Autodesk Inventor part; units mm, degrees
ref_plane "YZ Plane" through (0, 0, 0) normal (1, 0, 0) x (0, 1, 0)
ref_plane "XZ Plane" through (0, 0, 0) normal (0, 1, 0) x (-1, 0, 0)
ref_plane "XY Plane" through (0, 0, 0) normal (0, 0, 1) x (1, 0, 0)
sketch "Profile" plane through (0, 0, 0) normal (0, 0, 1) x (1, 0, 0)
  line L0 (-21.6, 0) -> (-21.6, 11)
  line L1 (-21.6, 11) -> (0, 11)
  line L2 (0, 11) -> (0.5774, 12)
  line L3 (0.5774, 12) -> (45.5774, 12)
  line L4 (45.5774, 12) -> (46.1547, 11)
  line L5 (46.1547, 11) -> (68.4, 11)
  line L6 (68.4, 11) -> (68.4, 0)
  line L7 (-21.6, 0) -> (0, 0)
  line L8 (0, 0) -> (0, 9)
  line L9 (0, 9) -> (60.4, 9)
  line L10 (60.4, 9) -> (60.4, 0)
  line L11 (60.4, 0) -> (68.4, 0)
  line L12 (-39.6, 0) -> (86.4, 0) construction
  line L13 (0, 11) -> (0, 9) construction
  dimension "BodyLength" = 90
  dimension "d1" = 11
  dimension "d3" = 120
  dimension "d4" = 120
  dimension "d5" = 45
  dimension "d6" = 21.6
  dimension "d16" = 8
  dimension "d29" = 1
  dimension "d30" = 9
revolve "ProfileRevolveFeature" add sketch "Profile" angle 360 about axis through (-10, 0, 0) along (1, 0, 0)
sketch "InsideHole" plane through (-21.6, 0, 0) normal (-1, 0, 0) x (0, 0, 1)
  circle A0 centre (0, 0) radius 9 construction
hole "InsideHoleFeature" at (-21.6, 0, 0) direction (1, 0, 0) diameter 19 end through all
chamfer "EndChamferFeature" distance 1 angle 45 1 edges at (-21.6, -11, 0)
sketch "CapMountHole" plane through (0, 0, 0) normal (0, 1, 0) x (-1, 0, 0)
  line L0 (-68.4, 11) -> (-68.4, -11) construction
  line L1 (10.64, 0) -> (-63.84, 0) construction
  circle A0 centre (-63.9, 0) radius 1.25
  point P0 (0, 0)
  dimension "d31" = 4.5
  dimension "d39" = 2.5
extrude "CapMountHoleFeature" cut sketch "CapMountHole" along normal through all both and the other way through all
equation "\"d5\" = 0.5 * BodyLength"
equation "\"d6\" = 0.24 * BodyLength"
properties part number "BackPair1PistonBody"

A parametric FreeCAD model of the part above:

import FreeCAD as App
import Part
import Sketcher

V = App.Vector
Q = App.Units.Quantity


def edges_at(feature, points):
    """Names of the edges that pass closest to the given points."""
    edges = feature.Shape.Edges
    near = lambda p: min(range(len(edges)), key=lambda i: edges[i].distToShape(Part.Vertex(*p))[0])
    return sorted({f"Edge{near(p) + 1}" for p in points})

doc = App.newDocument("Part")
body = doc.addObject("PartDesign::Body", "Body")

# Sketch on XY plane
sketch1 = body.newObject("Sketcher::SketchObject", "Sketch")
sketch1.AttachmentSupport = (doc.getObject("XY_Plane"), [""])
sketch1.MapMode = "FlatFace"
sketch1.addGeometry(Part.LineSegment(V(-21.6, 11, 0), V(-21.6, 0, 0)), False)
sketch1.addGeometry(Part.LineSegment(V(-21.6, 0, 0), V(0, 0, 0)), False)
sketch1.addGeometry(Part.LineSegment(V(0, 0, 0), V(0, 9, 0)), False)
sketch1.addGeometry(Part.LineSegment(V(0, 9, 0), V(60.4, 9, 0)), False)
sketch1.addGeometry(Part.LineSegment(V(60.4, 9, 0), V(60.4, 0, 0)), False)
sketch1.addGeometry(Part.LineSegment(V(60.4, 0, 0), V(68.4, 0, 0)), False)
sketch1.addGeometry(Part.LineSegment(V(68.4, 0, 0), V(68.4, 11, 0)), False)
sketch1.addGeometry(Part.LineSegment(V(68.4, 11, 0), V(46.2, 11, 0)), False)
sketch1.addGeometry(Part.LineSegment(V(46.2, 11, 0), V(45.6, 12, 0)), False)
sketch1.addGeometry(Part.LineSegment(V(45.6, 12, 0), V(0.6, 12, 0)), False)
sketch1.addGeometry(Part.LineSegment(V(0.6, 12, 0), V(0, 11, 0)), False)
sketch1.addGeometry(Part.LineSegment(V(0, 11, 0), V(-21.6, 11, 0)), False)
sketch1.addConstraint(Sketcher.Constraint("Coincident", 0, 2, 1, 1))
sketch1.addConstraint(Sketcher.Constraint("Coincident", 1, 2, 2, 1))
sketch1.addConstraint(Sketcher.Constraint("Coincident", 2, 2, 3, 1))
sketch1.addConstraint(Sketcher.Constraint("Coincident", 3, 2, 4, 1))
sketch1.addConstraint(Sketcher.Constraint("Coincident", 4, 2, 5, 1))
sketch1.addConstraint(Sketcher.Constraint("Coincident", 5, 2, 6, 1))
sketch1.addConstraint(Sketcher.Constraint("Coincident", 6, 2, 7, 1))
sketch1.addConstraint(Sketcher.Constraint("Coincident", 7, 2, 8, 1))
sketch1.addConstraint(Sketcher.Constraint("Coincident", 8, 2, 9, 1))
sketch1.addConstraint(Sketcher.Constraint("Coincident", 9, 2, 10, 1))
sketch1.addConstraint(Sketcher.Constraint("Coincident", 10, 2, 11, 1))
sketch1.addConstraint(Sketcher.Constraint("Coincident", 11, 2, 0, 1))
sketch1.addConstraint(Sketcher.Constraint("Vertical", 0))
sketch1.addConstraint(Sketcher.Constraint("Horizontal", 1))
sketch1.addConstraint(Sketcher.Constraint("Vertical", 2))
sketch1.addConstraint(Sketcher.Constraint("Horizontal", 3))
sketch1.addConstraint(Sketcher.Constraint("Vertical", 4))
sketch1.addConstraint(Sketcher.Constraint("Horizontal", 5))
sketch1.addConstraint(Sketcher.Constraint("Vertical", 6))
sketch1.addConstraint(Sketcher.Constraint("Horizontal", 7))
sketch1.addConstraint(Sketcher.Constraint("Horizontal", 9))
sketch1.addConstraint(Sketcher.Constraint("Horizontal", 11))
sketch1.addConstraint(Sketcher.Constraint("Coincident", 1, 2, -1, 1))
sketch1.addConstraint(Sketcher.Constraint("PointOnObject", 4, 2, -1))
sketch1.addConstraint(Sketcher.Constraint("PointOnObject", 10, 2, -2))
sketch1.addConstraint(Sketcher.Constraint("Horizontal", 7, 2, 10, 2))
sketch1.addConstraint(Sketcher.Constraint("Equal", 8, 10))
sketch1.addConstraint(Sketcher.Constraint("DistanceX", 5, 1, 5, 2, Q("8 mm")))
sketch1.addConstraint(Sketcher.Constraint("DistanceX", 9, 2, 9, 1, Q("45 mm")))
sketch1.addConstraint(Sketcher.Constraint("DistanceY", 0, 2, 0, 1, Q("11 mm")))
sketch1.addConstraint(Sketcher.Constraint("DistanceY", 2, 1, 2, 2, Q("9 mm")))
sketch1.addConstraint(Sketcher.Constraint("DistanceX", 1, 1, 1, 2, Q("21.6 mm")))
sketch1.addConstraint(Sketcher.Constraint("DistanceX", 0, 2, 5, 2, Q("90 mm")))
sketch1.addConstraint(Sketcher.Constraint("DistanceY", 7, 2, 8, 2, Q("1 mm")))
sketch1.addConstraint(Sketcher.Constraint("DistanceX", 7, 2, 7, 1, Q("22.2453 mm")))
revolution = body.newObject("PartDesign::Revolution", "Revolution")
revolution.Profile = sketch1
revolution.ReferenceAxis = (sketch1, ["H_Axis"])
revolution.Angle = 360

# Sketch on YZ plane
sketch2 = body.newObject("Sketcher::SketchObject", "Sketch001")
sketch2.AttachmentSupport = (doc.getObject("YZ_Plane"), [""])
sketch2.MapMode = "FlatFace"
sketch2.AttachmentOffset = App.Placement(V(0, 0, -21.6), App.Rotation())
sketch2.addGeometry(Part.Circle(V(0, 0, 0), V(0, 0, 1), 10), False)
sketch2.addConstraint(Sketcher.Constraint("Coincident", 0, 3, -1, 1))
sketch2.addConstraint(Sketcher.Constraint("Diameter", 0, Q("19 mm")))
doc.recompute()
hole = body.newObject("PartDesign::Hole", "Hole")
hole.Profile = sketch2
hole.ThreadType = "None"
hole.Diameter = 19
hole.DepthType = "ThroughAll"
hole.Reversed = True
doc.recompute()

chamfer = body.newObject("PartDesign::Chamfer", "Chamfer")
chamfer.Base = (hole, edges_at(hole, [(-21.6, -11, 0)]))
chamfer.Size = 1

# Sketch on XZ plane
sketch3 = body.newObject("Sketcher::SketchObject", "Sketch002")
sketch3.AttachmentSupport = (doc.getObject("XZ_Plane"), [""])
sketch3.MapMode = "FlatFace"
sketch3.addGeometry(Part.Circle(V(63.9, 0, 0), V(0, 0, 1), 1.2), False)
sketch3.addConstraint(Sketcher.Constraint("PointOnObject", 0, 3, -1))
sketch3.addConstraint(Sketcher.Constraint("Diameter", 0, Q("2.5 mm")))
sketch3.addConstraint(Sketcher.Constraint("DistanceX", -1, 1, 0, 3, Q("63.9 mm")))
pocket1 = body.newObject("PartDesign::Pocket", "Pocket")
pocket1.Profile = sketch3
pocket1.Type = "ThroughAll"
pocket1.Midplane = True

doc.recompute()
